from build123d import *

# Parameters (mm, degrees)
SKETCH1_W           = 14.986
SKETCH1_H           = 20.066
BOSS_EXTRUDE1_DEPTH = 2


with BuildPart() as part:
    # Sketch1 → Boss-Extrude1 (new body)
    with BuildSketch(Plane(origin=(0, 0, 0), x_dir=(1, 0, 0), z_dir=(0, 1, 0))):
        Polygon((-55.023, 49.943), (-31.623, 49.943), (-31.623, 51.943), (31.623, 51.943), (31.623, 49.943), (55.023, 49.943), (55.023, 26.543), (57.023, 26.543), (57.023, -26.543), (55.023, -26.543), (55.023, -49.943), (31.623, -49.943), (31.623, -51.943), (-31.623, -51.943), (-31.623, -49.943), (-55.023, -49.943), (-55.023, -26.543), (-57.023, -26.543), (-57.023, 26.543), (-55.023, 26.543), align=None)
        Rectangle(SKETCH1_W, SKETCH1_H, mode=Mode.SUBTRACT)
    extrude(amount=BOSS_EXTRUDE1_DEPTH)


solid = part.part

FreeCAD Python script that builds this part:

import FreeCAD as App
import Part
import Sketcher
from FreeCAD import Vector
Q = App.Units.Quantity


def add_polygon(sketch, points):
    """Adds a closed chain of lines whose ends are joined by coincident constraints."""
    first, n = sketch.GeometryCount, len(points)
    for a, b in zip(points, points[1:] + points[:1]):
        sketch.addGeometry(Part.LineSegment(App.Vector(*a, 0), App.Vector(*b, 0)), False)
    for i in range(n):
        sketch.addConstraint(Sketcher.Constraint("Coincident", first + i, 2, first + (i + 1) % n, 1))

doc = App.newDocument("Part")
body = doc.addObject("PartDesign::Body", "Body")

# Sketch on XZ plane
sketch1 = doc.addObject("Sketcher::SketchObject", "Sketch")
body.addObject(sketch1)
sketch1.AttachmentSupport = (doc.XZ_Plane, [""])
sketch1.MapMode = "FlatFace"
add_polygon(sketch1, [(-31.6, -49.9), (-55, -49.9), (-55, -26.5), (-57, -26.5), (-57, 26.5), (-55, 26.5), (-55, 49.9), (-31.6, 49.9), (-31.6, 51.9), (31.6, 51.9), (31.6, 49.9), (55, 49.9), (55, 26.5), (57, 26.5), (57, -26.5), (55, -26.5), (55, -49.9), (31.6, -49.9), (31.6, -51.9), (-31.6, -51.9)])  # lines 0-19
add_polygon(sketch1, [(-7.5, 10), (-7.5, -10), (7.5, -10), (7.5, 10)])  # lines 20-23
sketch1.addConstraint([
    Sketcher.Constraint("Horizontal", 0),
    Sketcher.Constraint("Vertical", 1),
    Sketcher.Constraint("Horizontal", 2),
    Sketcher.Constraint("Vertical", 3),
    Sketcher.Constraint("Horizontal", 4),
    Sketcher.Constraint("Vertical", 5),
    Sketcher.Constraint("Horizontal", 6),
    Sketcher.Constraint("Vertical", 7),
    Sketcher.Constraint("Horizontal", 8),
    Sketcher.Constraint("Vertical", 9),
    Sketcher.Constraint("Horizontal", 10),
    Sketcher.Constraint("Vertical", 11),
    Sketcher.Constraint("Horizontal", 12),
    Sketcher.Constraint("Vertical", 13),
    Sketcher.Constraint("Horizontal", 14),
    Sketcher.Constraint("Vertical", 15),
    Sketcher.Constraint("Horizontal", 16),
    Sketcher.Constraint("Vertical", 17),
    Sketcher.Constraint("Horizontal", 18),
    Sketcher.Constraint("Vertical", 19),
    Sketcher.Constraint("Vertical", 20),
    Sketcher.Constraint("Horizontal", 21),
    Sketcher.Constraint("Vertical", 22),
    Sketcher.Constraint("Horizontal", 23),
    Sketcher.Constraint("Symmetric", 0, 2, 10, 2, -1, 1),
    Sketcher.Constraint("Symmetric", 2, 2, 12, 2, -1, 1),
    Sketcher.Constraint("Symmetric", 4, 2, 14, 2, -1, 1),
    Sketcher.Constraint("Symmetric", 6, 2, 16, 2, -1, 1),
    Sketcher.Constraint("Symmetric", 8, 2, 18, 2, -1, 1),
    Sketcher.Constraint("Symmetric", 20, 2, 22, 2, -1, 1),
    Sketcher.Constraint("Symmetric", 6, 2, 9, 2, -2),
    Sketcher.Constraint("Symmetric", 4, 2, 11, 2, -2),
    Sketcher.Constraint("Equal", 16, 1),
    Sketcher.Constraint("Equal", 14, 7),
    Sketcher.Constraint("DistanceX", 3, 2, 6, 2, Q("1 in")),
    Sketcher.Constraint("DistanceX", 8, 1, 8, 2, Q("2.49 in")),
    Sketcher.Constraint("DistanceX", 21, 1, 21, 2, Q("0.59 in")),
    Sketcher.Constraint("DistanceY", 3, 1, 3, 2, Q("2.09 in")),
    Sketcher.Constraint("DistanceY", 20, 2, 20, 1, Q("0.79 in")),
    Sketcher.Constraint("DistanceX", 0, 2, 0, 1, 23.4),
])
pad1 = doc.addObject("PartDesign::Pad", "Pad")
body.addObject(pad1)
pad1.Profile = sketch1
pad1.Length = 2
pad1.Reversed = True

doc.recompute()
